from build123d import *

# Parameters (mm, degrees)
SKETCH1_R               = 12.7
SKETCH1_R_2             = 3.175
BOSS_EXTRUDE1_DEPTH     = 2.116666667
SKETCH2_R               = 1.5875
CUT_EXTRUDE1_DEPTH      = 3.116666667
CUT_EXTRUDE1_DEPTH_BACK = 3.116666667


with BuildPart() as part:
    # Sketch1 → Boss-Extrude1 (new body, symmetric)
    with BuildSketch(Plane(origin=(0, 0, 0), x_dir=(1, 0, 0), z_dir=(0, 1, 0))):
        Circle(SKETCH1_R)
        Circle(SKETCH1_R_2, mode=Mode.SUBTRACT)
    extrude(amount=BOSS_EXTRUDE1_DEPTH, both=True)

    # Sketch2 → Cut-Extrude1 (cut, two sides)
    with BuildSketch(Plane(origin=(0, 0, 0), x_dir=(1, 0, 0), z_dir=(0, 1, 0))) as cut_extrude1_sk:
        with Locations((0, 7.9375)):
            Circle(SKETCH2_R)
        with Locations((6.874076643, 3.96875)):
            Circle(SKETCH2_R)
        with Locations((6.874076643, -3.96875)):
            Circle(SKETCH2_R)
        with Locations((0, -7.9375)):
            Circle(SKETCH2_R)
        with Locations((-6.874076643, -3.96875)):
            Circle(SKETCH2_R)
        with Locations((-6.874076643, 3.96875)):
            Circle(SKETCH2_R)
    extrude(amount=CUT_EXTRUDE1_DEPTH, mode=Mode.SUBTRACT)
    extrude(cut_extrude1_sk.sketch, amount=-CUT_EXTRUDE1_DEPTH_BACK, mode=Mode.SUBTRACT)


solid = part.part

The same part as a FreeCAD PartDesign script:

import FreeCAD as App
import Part
import Sketcher
Q = App.Units.Quantity

doc = App.newDocument("Part")
params = doc.addObject("Spreadsheet::Sheet", "Params")
for row, (alias, value) in enumerate([
    ("sketch1_diameter", "1 in"),
    ("sketch1_diameter2", "0.25 in"),
    ("pad1_length", "4.233333 mm"),
    ("sketch2_diameter", "0.125 in"),
], start=1):
    params.set(f"A{row}", alias)
    params.set(f"B{row}", "=" + value)
    params.setAlias(f"B{row}", alias)

body = doc.addObject("PartDesign::Body", "Body")

sketch1 = body.newObject("Sketcher::SketchObject", "Sketch")
sketch1.AttachmentSupport = (doc.getObject("XZ_Plane"), [""])
sketch1.MapMode = "FlatFace"
sketch1.addGeometry(Part.Circle(App.Vector(0, 0, 0), App.Vector(0, 0, 1), 12.7), False)
sketch1.addGeometry(Part.Circle(App.Vector(0, 0, 0), App.Vector(0, 0, 1), 3.2), False)
sketch1.addConstraint(Sketcher.Constraint("Coincident", 0, 3, -1, 1))
sketch1.addConstraint(Sketcher.Constraint("Coincident", 1, 3, -1, 1))
sketch1.addConstraint(Sketcher.Constraint("Diameter", 0, Q("1 in")))
sketch1.addConstraint(Sketcher.Constraint("Diameter", 1, Q("0.25 in")))
sketch1.setExpression("Constraints[2]", "Params.sketch1_diameter")
sketch1.setExpression("Constraints[3]", "Params.sketch1_diameter2")
pad1 = body.newObject("PartDesign::Pad", "Pad")
pad1.Profile = sketch1
pad1.setExpression("Length", "Params.pad1_length")
pad1.Midplane = True

sketch2 = body.newObject("Sketcher::SketchObject", "Sketch001")
sketch2.AttachmentSupport = (doc.getObject("XZ_Plane"), [""])
sketch2.MapMode = "FlatFace"
sketch2.addGeometry(Part.Circle(App.Vector(0, -7.9, 0), App.Vector(0, 0, 1), 1.6), False)
sketch2.addGeometry(Part.Circle(App.Vector(6.9, -4, 0), App.Vector(0, 0, 1), 1.6), False)
sketch2.addGeometry(Part.Circle(App.Vector(6.9, 4, 0), App.Vector(0, 0, 1), 1.6), False)
sketch2.addGeometry(Part.Circle(App.Vector(0, 7.9, 0), App.Vector(0, 0, 1), 1.6), False)
sketch2.addGeometry(Part.Circle(App.Vector(-6.9, 4, 0), App.Vector(0, 0, 1), 1.6), False)
sketch2.addGeometry(Part.Circle(App.Vector(-6.9, -4, 0), App.Vector(0, 0, 1), 1.6), False)
sketch2.addConstraint(Sketcher.Constraint("Equal", 0, 1))
sketch2.addConstraint(Sketcher.Constraint("Equal", 1, 2))
sketch2.addConstraint(Sketcher.Constraint("Equal", 2, 3))
sketch2.addConstraint(Sketcher.Constraint("Equal", 3, 4))
sketch2.addConstraint(Sketcher.Constraint("Equal", 4, 5))
sketch2.addConstraint(Sketcher.Constraint("Symmetric", 0, 3, 3, 3, -1, 1))
sketch2.addConstraint(Sketcher.Constraint("Symmetric", 1, 3, 4, 3, -1, 1))
sketch2.addConstraint(Sketcher.Constraint("Symmetric", 2, 3, 5, 3, -1, 1))
sketch2.addConstraint(Sketcher.Constraint("Symmetric", 2, 3, 4, 3, -2))
sketch2.addConstraint(Sketcher.Constraint("PointOnObject", 0, 3, -2))
sketch2.addConstraint(Sketcher.Constraint("Diameter", 0, Q("0.125 in")))
sketch2.addConstraint(Sketcher.Constraint("DistanceY", 0, 3, -1, 1, Q("0.3125 in")))
sketch2.addConstraint(Sketcher.Constraint("DistanceY", 1, 3, -1, 1, Q("0.15625 in")))
sketch2.addConstraint(Sketcher.Constraint("DistanceX", -1, 1, 1, 3, 6.874077))
sketch2.setExpression("Constraints[10]", "Params.sketch2_diameter")
pocket1 = body.newObject("PartDesign::Pocket", "Pocket")
pocket1.Profile = sketch2
pocket1.Type = "ThroughAll"
pocket1.Midplane = True

doc.recompute()
